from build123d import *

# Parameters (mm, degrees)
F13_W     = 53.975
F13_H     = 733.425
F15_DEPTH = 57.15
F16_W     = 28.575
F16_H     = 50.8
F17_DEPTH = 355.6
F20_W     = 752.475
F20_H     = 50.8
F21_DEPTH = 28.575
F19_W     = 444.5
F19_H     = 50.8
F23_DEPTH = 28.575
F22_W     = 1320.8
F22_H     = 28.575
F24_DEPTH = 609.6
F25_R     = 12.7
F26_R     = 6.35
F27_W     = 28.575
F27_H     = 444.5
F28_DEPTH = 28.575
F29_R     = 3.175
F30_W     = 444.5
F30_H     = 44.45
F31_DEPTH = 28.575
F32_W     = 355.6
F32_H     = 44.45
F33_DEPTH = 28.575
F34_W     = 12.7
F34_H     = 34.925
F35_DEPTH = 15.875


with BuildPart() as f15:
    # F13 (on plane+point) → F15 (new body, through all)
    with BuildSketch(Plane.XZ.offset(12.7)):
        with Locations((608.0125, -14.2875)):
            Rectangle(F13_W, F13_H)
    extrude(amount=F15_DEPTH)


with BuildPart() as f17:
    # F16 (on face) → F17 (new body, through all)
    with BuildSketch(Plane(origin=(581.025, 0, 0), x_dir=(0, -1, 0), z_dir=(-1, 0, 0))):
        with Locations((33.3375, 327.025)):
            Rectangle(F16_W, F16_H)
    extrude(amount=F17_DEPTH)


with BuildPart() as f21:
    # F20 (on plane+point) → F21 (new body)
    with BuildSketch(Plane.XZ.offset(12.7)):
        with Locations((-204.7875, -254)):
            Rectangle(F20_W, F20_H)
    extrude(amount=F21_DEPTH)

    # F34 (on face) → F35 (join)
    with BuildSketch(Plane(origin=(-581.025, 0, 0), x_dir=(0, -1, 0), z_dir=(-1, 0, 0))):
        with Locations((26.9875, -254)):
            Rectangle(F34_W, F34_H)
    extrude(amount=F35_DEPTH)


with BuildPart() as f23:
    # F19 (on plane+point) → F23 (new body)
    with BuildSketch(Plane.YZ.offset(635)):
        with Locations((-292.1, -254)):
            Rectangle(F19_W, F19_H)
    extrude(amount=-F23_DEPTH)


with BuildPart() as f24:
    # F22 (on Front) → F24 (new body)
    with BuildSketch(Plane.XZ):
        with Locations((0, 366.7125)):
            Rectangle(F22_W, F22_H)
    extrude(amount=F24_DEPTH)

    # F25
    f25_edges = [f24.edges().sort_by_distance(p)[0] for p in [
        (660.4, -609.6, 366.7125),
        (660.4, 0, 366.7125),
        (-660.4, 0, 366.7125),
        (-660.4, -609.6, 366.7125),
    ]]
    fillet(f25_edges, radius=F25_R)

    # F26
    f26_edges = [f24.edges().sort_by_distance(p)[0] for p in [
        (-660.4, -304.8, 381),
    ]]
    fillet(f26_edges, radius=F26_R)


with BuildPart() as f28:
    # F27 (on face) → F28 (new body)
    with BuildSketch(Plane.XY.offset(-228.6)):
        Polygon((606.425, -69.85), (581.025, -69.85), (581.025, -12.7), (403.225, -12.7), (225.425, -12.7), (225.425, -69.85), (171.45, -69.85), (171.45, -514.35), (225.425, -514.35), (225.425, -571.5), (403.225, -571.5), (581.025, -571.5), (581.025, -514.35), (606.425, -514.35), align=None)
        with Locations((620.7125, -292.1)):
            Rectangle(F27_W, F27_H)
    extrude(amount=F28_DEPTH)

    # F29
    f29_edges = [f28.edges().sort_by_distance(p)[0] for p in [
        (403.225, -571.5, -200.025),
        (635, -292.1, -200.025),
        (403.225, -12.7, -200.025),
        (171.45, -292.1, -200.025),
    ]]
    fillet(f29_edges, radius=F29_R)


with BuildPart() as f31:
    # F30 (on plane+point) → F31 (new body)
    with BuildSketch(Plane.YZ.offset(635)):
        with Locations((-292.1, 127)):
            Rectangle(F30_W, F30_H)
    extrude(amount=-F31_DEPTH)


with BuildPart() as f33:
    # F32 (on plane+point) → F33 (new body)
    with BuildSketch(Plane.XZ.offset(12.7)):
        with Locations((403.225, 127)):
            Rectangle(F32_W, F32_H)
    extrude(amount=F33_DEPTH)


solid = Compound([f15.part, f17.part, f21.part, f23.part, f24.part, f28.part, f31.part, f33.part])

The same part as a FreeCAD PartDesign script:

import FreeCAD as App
import Part
import Sketcher
Q = App.Units.Quantity


def edges_at(feature, points):
    """Names of the edges that pass closest to the given points."""
    edges = feature.Shape.Edges
    near = lambda p: min(range(len(edges)), key=lambda i: edges[i].distToShape(Part.Vertex(*p))[0])
    return sorted({f"Edge{near(p) + 1}" for p in points})


def add_polygon(sketch, points):
    """Adds a closed chain of lines whose ends are joined by coincident constraints."""
    first, n = sketch.GeometryCount, len(points)
    for a, b in zip(points, points[1:] + points[:1]):
        sketch.addGeometry(Part.LineSegment(App.Vector(*a, 0), App.Vector(*b, 0)), False)
    for i in range(n):
        sketch.addConstraint(Sketcher.Constraint("Coincident", first + i, 2, first + (i + 1) % n, 1))

doc = App.newDocument("Part")
body = doc.addObject("PartDesign::Body", "Body")

sketch1 = body.newObject("Sketcher::SketchObject", "Sketch")
sketch1.AttachmentSupport = (doc.getObject("XZ_Plane"), [""])
sketch1.MapMode = "FlatFace"
sketch1.AttachmentOffset = App.Placement(App.Vector(0, 0, 0.5 * 25.4), App.Rotation())
add_polygon(sketch1, [(581.025, 352.425), (581.025, -381), (635, -381), (635, 352.425)])
sketch1.addConstraint([
    Sketcher.Constraint("Vertical", 0),
    Sketcher.Constraint("Horizontal", 1),
    Sketcher.Constraint("Vertical", 2),
    Sketcher.Constraint("Horizontal", 3),
    Sketcher.Constraint("DistanceY", 0, 2, -1, 1, Q("15 in")),
    Sketcher.Constraint("DistanceX", -1, 1, 1, 2, Q("25 in")),
    Sketcher.Constraint("DistanceX", 1, 1, 1, 2, Q("2.125 in")),
    Sketcher.Constraint("DistanceY", 0, 2, 0, 1, Q("28.875 in")),
])
pad1 = body.newObject("PartDesign::Pad", "Pad")
pad1.Profile = sketch1
pad1.Length = Q("2.25 in")
body2 = doc.addObject("PartDesign::Body", "Body001")

sketch2 = body2.newObject("Sketcher::SketchObject", "Sketch001")
sketch2.AttachmentSupport = (doc.getObject("YZ_Plane001"), [""])
sketch2.MapMode = "FlatFace"
sketch2.AttachmentOffset = App.Placement(App.Vector(0, 0, 22.875 * 25.4), App.Rotation())
add_polygon(sketch2, [(-19.05, 352.425), (-19.05, 301.625), (-47.625, 301.625), (-47.625, 352.425)])
sketch2.addConstraint([
    Sketcher.Constraint("Vertical", 0),
    Sketcher.Constraint("Horizontal", 1),
    Sketcher.Constraint("Vertical", 2),
    Sketcher.Constraint("Horizontal", 3),
    Sketcher.Constraint("DistanceY", 0, 2, 0, 1, Q("2 in")),
    Sketcher.Constraint("DistanceX", 1, 2, 1, 1, Q("1.125 in")),
    Sketcher.Constraint("DistanceX", 0, 2, -1, 1, Q("0.75 in")),
    Sketcher.Constraint("DistanceY", -1, 1, 0, 2, Q("11.875 in")),
])
pad2 = body2.newObject("PartDesign::Pad", "Pad001")
pad2.Profile = sketch2
pad2.Length = Q("14 in")
pad2.Reversed = True
body3 = doc.addObject("PartDesign::Body", "Body002")

sketch3 = body3.newObject("Sketcher::SketchObject", "Sketch002")
sketch3.AttachmentSupport = (doc.getObject("XZ_Plane002"), [""])
sketch3.MapMode = "FlatFace"
sketch3.AttachmentOffset = App.Placement(App.Vector(0, 0, 0.5 * 25.4), App.Rotation())
add_polygon(sketch3, [(-581.025, -228.6), (-581.025, -279.4), (171.45, -279.4), (171.45, -228.6)])
sketch3.addConstraint([
    Sketcher.Constraint("Vertical", 0),
    Sketcher.Constraint("Horizontal", 1),
    Sketcher.Constraint("Vertical", 2),
    Sketcher.Constraint("Horizontal", 3),
    Sketcher.Constraint("DistanceY", 0, 2, 0, 1, Q("2 in")),
    Sketcher.Constraint("DistanceY", 0, 2, -1, 1, Q("11 in")),
    Sketcher.Constraint("DistanceX", 1, 1, 1, 2, Q("29.625 in")),
    Sketcher.Constraint("DistanceX", -1, 1, 1, 2, Q("6.75 in")),
])
pad3 = body3.newObject("PartDesign::Pad", "Pad002")
pad3.Profile = sketch3
pad3.Length = Q("1.125 in")

sketch4 = body3.newObject("Sketcher::SketchObject", "Sketch003")
sketch4.AttachmentSupport = (doc.getObject("YZ_Plane002"), [""])
sketch4.MapMode = "FlatFace"
sketch4.AttachmentOffset = App.Placement(App.Vector(0, 0, -22.875 * 25.4), App.Rotation())
add_polygon(sketch4, [(-20.6375, -236.5375), (-20.6375, -271.4625), (-33.3375, -271.4625), (-33.3375, -236.5375)])
sketch4.addConstraint([
    Sketcher.Constraint("Vertical", 0),
    Sketcher.Constraint("Horizontal", 1),
    Sketcher.Constraint("Vertical", 2),
    Sketcher.Constraint("Horizontal", 3),
    Sketcher.Constraint("DistanceX", 1, 2, 1, 1, Q("0.5 in")),
    Sketcher.Constraint("DistanceY", 0, 2, 0, 1, Q("1.375 in")),
    Sketcher.Constraint("DistanceX", 0, 2, -1, 1, Q("0.8125 in")),
    Sketcher.Constraint("DistanceY", 0, 2, -1, 1, Q("10.6875 in")),
])
pad4 = body3.newObject("PartDesign::Pad", "Pad003")
pad4.Profile = sketch4
pad4.Length = Q("0.625 in")
pad4.Reversed = True
body4 = doc.addObject("PartDesign::Body", "Body003")

sketch5 = body4.newObject("Sketcher::SketchObject", "Sketch004")
sketch5.AttachmentSupport = (doc.getObject("YZ_Plane003"), [""])
sketch5.MapMode = "FlatFace"
sketch5.AttachmentOffset = App.Placement(App.Vector(0, 0, 25 * 25.4), App.Rotation())
add_polygon(sketch5, [(-514.35, -228.6), (-514.35, -279.4), (-69.85, -279.4), (-69.85, -228.6)])
sketch5.addConstraint([
    Sketcher.Constraint("Vertical", 0),
    Sketcher.Constraint("Horizontal", 1),
    Sketcher.Constraint("Vertical", 2),
    Sketcher.Constraint("Horizontal", 3),
    Sketcher.Constraint("DistanceY", 0, 2, 0, 1, Q("2 in")),
    Sketcher.Constraint("DistanceX", 1, 1, 1, 2, Q("17.5 in")),
    Sketcher.Constraint("DistanceY", 0, 2, -1, 1, Q("11 in")),
    Sketcher.Constraint("DistanceX", 0, 2, -1, 1, Q("20.25 in")),
])
pad5 = body4.newObject("PartDesign::Pad", "Pad004")
pad5.Profile = sketch5
pad5.Length = Q("1.125 in")
pad5.Reversed = True
body5 = doc.addObject("PartDesign::Body", "Body004")

sketch6 = body5.newObject("Sketcher::SketchObject", "Sketch005")
sketch6.AttachmentSupport = (doc.getObject("XZ_Plane004"), [""])
sketch6.MapMode = "FlatFace"
add_polygon(sketch6, [(-660.4, 381), (-660.4, 352.425), (660.4, 352.425), (660.4, 381)])
sketch6.addConstraint([
    Sketcher.Constraint("Vertical", 0),
    Sketcher.Constraint("Horizontal", 1),
    Sketcher.Constraint("Vertical", 2),
    Sketcher.Constraint("Horizontal", 3),
    Sketcher.Constraint("DistanceX", 1, 1, 1, 2, Q("52 in")),
    Sketcher.Constraint("DistanceX", 0, 2, -1, 1, Q("26 in")),
    Sketcher.Constraint("DistanceY", -1, 1, 2, 2, Q("15 in")),
    Sketcher.Constraint("DistanceY", 0, 2, 0, 1, Q("1.125 in")),
])
pad6 = body5.newObject("PartDesign::Pad", "Pad005")
pad6.Profile = sketch6
pad6.Length = Q("24 in")
doc.recompute()

fillet = body5.newObject("PartDesign::Fillet", "Fillet")
fillet.Base = (pad6, edges_at(pad6, [
    (660.4, -609.6, 366.712),
    (660.4, 0, 366.712),
    (-660.4, 0, 366.712),
    (-660.4, -609.6, 366.712),
]))
fillet.Radius = Q("0.5 in")
doc.recompute()

fillet2 = body5.newObject("PartDesign::Fillet", "Fillet001")
fillet2.Base = (fillet, edges_at(fillet, [(-660.4, -304.8, 381)]))
fillet2.Radius = Q("0.25 in")
body6 = doc.addObject("PartDesign::Body", "Body005")

sketch7 = body6.newObject("Sketcher::SketchObject", "Sketch006")
sketch7.AttachmentSupport = (doc.getObject("XY_Plane005"), [""])
sketch7.MapMode = "FlatFace"
sketch7.AttachmentOffset = App.Placement(App.Vector(0, 0, -9 * 25.4), App.Rotation())
add_polygon(sketch7, [(581.025, -69.85), (581.025, -12.7), (225.425, -12.7), (225.425, -69.85), (171.45, -69.85), (171.45, -514.35), (225.425, -514.35), (225.425, -571.5), (581.025, -571.5), (581.025, -514.35), (635, -514.35), (635, -69.85)])
sketch7.addConstraint([
    Sketcher.Constraint("Vertical", 0),
    Sketcher.Constraint("Horizontal", 1),
    Sketcher.Constraint("Vertical", 2),
    Sketcher.Constraint("Horizontal", 3),
    Sketcher.Constraint("Vertical", 4),
    Sketcher.Constraint("Horizontal", 5),
    Sketcher.Constraint("Vertical", 6),
    Sketcher.Constraint("Horizontal", 7),
    Sketcher.Constraint("Vertical", 8),
    Sketcher.Constraint("Horizontal", 9),
    Sketcher.Constraint("Vertical", 10),
    Sketcher.Constraint("Horizontal", 11),
    Sketcher.Constraint("Horizontal", 5, 2, 8, 2),
    Sketcher.Constraint("Horizontal", 3, 2, 10, 2),
    Sketcher.Constraint("Vertical", 2, 2, 5, 2),
    Sketcher.Constraint("Vertical", 0, 2, 7, 2),
    Sketcher.Constraint("Equal", 5, 9),
    Sketcher.Constraint("Equal", 2, 6),
    Sketcher.Constraint("DistanceX", 1, 2, 1, 1, Q("14 in")),
    Sketcher.Constraint("DistanceY", 4, 2, 4, 1, Q("17.5 in")),
    Sketcher.Constraint("DistanceX", -1, 1, 9, 2, Q("25 in")),
    Sketcher.Constraint("DistanceY", 6, 2, 1, 2, Q("22 in")),
    Sketcher.Constraint("DistanceY", 0, 2, -1, 1, Q("0.5 in")),
    Sketcher.Constraint("DistanceX", 3, 2, 3, 1, Q("2.125 in")),
])
pad7 = body6.newObject("PartDesign::Pad", "Pad006")
pad7.Profile = sketch7
pad7.Length = Q("1.125 in")
doc.recompute()

fillet3 = body6.newObject("PartDesign::Fillet", "Fillet002")
fillet3.Base = (pad7, edges_at(pad7, [
    (403.225, -571.5, -200.025),
    (635, -292.1, -200.025),
    (403.225, -12.7, -200.025),
    (171.45, -292.1, -200.025),
]))
fillet3.Radius = Q("0.125 in")
body7 = doc.addObject("PartDesign::Body", "Body006")

sketch8 = body7.newObject("Sketcher::SketchObject", "Sketch007")
sketch8.AttachmentSupport = (doc.getObject("YZ_Plane006"), [""])
sketch8.MapMode = "FlatFace"
sketch8.AttachmentOffset = App.Placement(App.Vector(0, 0, 25 * 25.4), App.Rotation())
add_polygon(sketch8, [(-514.35, 149.225), (-514.35, 104.775), (-69.85, 104.775), (-69.85, 149.225)])
sketch8.addConstraint([
    Sketcher.Constraint("Vertical", 0),
    Sketcher.Constraint("Horizontal", 1),
    Sketcher.Constraint("Vertical", 2),
    Sketcher.Constraint("Horizontal", 3),
    Sketcher.Constraint("DistanceX", 1, 1, 1, 2, Q("17.5 in")),
    Sketcher.Constraint("DistanceY", 0, 2, 0, 1, Q("1.75 in")),
    Sketcher.Constraint("DistanceX", 0, 2, -1, 1, Q("20.25 in")),
    Sketcher.Constraint("DistanceY", -1, 1, 0, 2, Q("4.125 in")),
])
pad8 = body7.newObject("PartDesign::Pad", "Pad007")
pad8.Profile = sketch8
pad8.Length = Q("1.125 in")
pad8.Reversed = True
body8 = doc.addObject("PartDesign::Body", "Body007")

sketch9 = body8.newObject("Sketcher::SketchObject", "Sketch008")
sketch9.AttachmentSupport = (doc.getObject("XZ_Plane007"), [""])
sketch9.MapMode = "FlatFace"
sketch9.AttachmentOffset = App.Placement(App.Vector(0, 0, 0.5 * 25.4), App.Rotation())
add_polygon(sketch9, [(225.425, 149.225), (225.425, 104.775), (581.025, 104.775), (581.025, 149.225)])
sketch9.addConstraint([
    Sketcher.Constraint("Vertical", 0),
    Sketcher.Constraint("Horizontal", 1),
    Sketcher.Constraint("Vertical", 2),
    Sketcher.Constraint("Horizontal", 3),
    Sketcher.Constraint("DistanceX", 1, 1, 1, 2, Q("14 in")),
    Sketcher.Constraint("DistanceY", 0, 2, 0, 1, Q("1.75 in")),
    Sketcher.Constraint("DistanceX", -1, 1, 0, 2, Q("8.875 in")),
    Sketcher.Constraint("DistanceY", -1, 1, 0, 2, Q("4.125 in")),
])
pad9 = body8.newObject("PartDesign::Pad", "Pad008")
pad9.Profile = sketch9
pad9.Length = Q("1.125 in")

doc.recompute()
